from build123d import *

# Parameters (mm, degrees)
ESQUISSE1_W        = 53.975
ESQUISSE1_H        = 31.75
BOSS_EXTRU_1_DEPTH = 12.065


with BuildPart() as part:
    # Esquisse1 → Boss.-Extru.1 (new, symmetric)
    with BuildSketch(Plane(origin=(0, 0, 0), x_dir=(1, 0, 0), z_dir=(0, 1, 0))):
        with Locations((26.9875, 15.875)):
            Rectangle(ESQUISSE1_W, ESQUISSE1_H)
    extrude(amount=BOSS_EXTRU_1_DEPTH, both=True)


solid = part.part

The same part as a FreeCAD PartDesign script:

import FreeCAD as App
import Part
import Sketcher
Q = App.Units.Quantity

doc = App.newDocument("Part")
body = doc.addObject("PartDesign::Body", "Body")

sketch1 = body.newObject("Sketcher::SketchObject", "Sketch")
sketch1.AttachmentSupport = (doc.getObject("XZ_Plane"), [""])
sketch1.MapMode = "FlatFace"
sketch1.addGeometry([
    Part.LineSegment(App.Vector(0, -31.75, 0), App.Vector(0, 0, 0)),
    Part.LineSegment(App.Vector(0, 0, 0), App.Vector(53.975, 0, 0)),
    Part.LineSegment(App.Vector(53.975, 0, 0), App.Vector(53.975, -31.75, 0)),
    Part.LineSegment(App.Vector(53.975, -31.75, 0), App.Vector(0, -31.75, 0)),
], False)
sketch1.addConstraint([
    Sketcher.Constraint("Coincident", 0, 2, 1, 1),
    Sketcher.Constraint("Coincident", 1, 2, 2, 1),
    Sketcher.Constraint("Coincident", 2, 2, 3, 1),
    Sketcher.Constraint("Coincident", 3, 2, 0, 1),
    Sketcher.Constraint("Vertical", 0),
    Sketcher.Constraint("Horizontal", 1),
    Sketcher.Constraint("Vertical", 2),
    Sketcher.Constraint("Horizontal", 3),
    Sketcher.Constraint("Coincident", 0, 2, -1, 1),
    Sketcher.Constraint("DistanceY", 0, 1, 0, 2, Q("1.25 in")),
    Sketcher.Constraint("DistanceX", 1, 1, 1, 2, Q("2.125 in")),
])
pad1 = body.newObject("PartDesign::Pad", "Pad")
pad1.Profile = sketch1
pad1.Length = Q("0.95 in")
pad1.Midplane = True

doc.recompute()
